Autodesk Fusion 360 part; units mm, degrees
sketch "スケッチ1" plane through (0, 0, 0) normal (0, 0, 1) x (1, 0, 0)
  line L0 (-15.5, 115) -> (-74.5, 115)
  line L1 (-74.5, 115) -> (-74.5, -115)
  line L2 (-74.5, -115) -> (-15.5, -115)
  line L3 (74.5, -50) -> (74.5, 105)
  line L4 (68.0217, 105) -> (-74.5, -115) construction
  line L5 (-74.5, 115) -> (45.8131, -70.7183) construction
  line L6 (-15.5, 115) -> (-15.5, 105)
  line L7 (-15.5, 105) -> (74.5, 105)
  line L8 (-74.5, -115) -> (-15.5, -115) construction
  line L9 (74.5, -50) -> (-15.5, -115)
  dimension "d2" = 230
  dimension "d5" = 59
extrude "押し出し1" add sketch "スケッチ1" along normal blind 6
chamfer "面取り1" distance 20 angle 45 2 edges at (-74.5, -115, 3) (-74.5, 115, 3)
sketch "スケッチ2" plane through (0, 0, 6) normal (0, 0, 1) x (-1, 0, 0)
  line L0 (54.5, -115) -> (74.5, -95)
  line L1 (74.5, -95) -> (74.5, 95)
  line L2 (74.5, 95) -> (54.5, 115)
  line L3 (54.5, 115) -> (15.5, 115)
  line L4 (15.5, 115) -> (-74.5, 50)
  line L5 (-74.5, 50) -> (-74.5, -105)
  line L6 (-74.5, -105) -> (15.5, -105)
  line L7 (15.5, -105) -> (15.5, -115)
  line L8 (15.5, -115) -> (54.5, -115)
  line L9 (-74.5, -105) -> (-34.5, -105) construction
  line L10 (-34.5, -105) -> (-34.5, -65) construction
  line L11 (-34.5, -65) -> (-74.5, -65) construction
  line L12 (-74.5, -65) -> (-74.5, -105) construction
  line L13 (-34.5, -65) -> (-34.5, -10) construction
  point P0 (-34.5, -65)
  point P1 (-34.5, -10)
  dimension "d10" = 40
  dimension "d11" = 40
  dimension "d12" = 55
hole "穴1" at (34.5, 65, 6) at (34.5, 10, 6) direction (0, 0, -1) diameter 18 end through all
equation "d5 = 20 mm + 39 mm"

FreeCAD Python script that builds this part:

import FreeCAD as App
import Part
import Sketcher
from FreeCAD import Vector


def edges_at(feature, points):
    """Names of the edges that pass closest to the given points."""
    edges = feature.Shape.Edges
    near = lambda p: min(range(len(edges)), key=lambda i: edges[i].distToShape(Part.Vertex(*p))[0])
    return sorted({f"Edge{near(p) + 1}" for p in points})

doc = App.newDocument("Part")
body = doc.addObject("PartDesign::Body", "Body")

# Sketch on XY plane
sketch1 = body.newObject("Sketcher::SketchObject", "Sketch")
sketch1.AttachmentSupport = (doc.getObject("XY_Plane"), [""])
sketch1.MapMode = "FlatFace"
sketch1.addGeometry(Part.LineSegment(Vector(-16, 105, 0), Vector(-16, 115, 0)), False)
sketch1.addGeometry(Part.LineSegment(Vector(-16, 115, 0), Vector(-74, 115, 0)), False)
sketch1.addGeometry(Part.LineSegment(Vector(-74, 115, 0), Vector(-74, -115, 0)), False)
sketch1.addGeometry(Part.LineSegment(Vector(-74, -115, 0), Vector(-16, -115, 0)), False)
sketch1.addGeometry(Part.LineSegment(Vector(-16, -115, 0), Vector(74, -50, 0)), False)
sketch1.addGeometry(Part.LineSegment(Vector(74, -50, 0), Vector(74, 105, 0)), False)
sketch1.addGeometry(Part.LineSegment(Vector(74, 105, 0), Vector(-16, 105, 0)), False)
sketch1.addConstraint(Sketcher.Constraint("Coincident", 0, 2, 1, 1))
sketch1.addConstraint(Sketcher.Constraint("Coincident", 1, 2, 2, 1))
sketch1.addConstraint(Sketcher.Constraint("Coincident", 2, 2, 3, 1))
sketch1.addConstraint(Sketcher.Constraint("Coincident", 3, 2, 4, 1))
sketch1.addConstraint(Sketcher.Constraint("Coincident", 4, 2, 5, 1))
sketch1.addConstraint(Sketcher.Constraint("Coincident", 5, 2, 6, 1))
sketch1.addConstraint(Sketcher.Constraint("Coincident", 6, 2, 0, 1))
sketch1.addConstraint(Sketcher.Constraint("Vertical", 0))
sketch1.addConstraint(Sketcher.Constraint("Horizontal", 1))
sketch1.addConstraint(Sketcher.Constraint("Vertical", 2))
sketch1.addConstraint(Sketcher.Constraint("Horizontal", 3))
sketch1.addConstraint(Sketcher.Constraint("Vertical", 5))
sketch1.addConstraint(Sketcher.Constraint("Horizontal", 6))
sketch1.addConstraint(Sketcher.Constraint("Symmetric", 0, 2, 3, 2, -1))
sketch1.addConstraint(Sketcher.Constraint("DistanceX", 1, 2, 1, 1, 59.0))
sketch1.addConstraint(Sketcher.Constraint("DistanceY", 2, 2, 2, 1, 230.0))
sketch1.addConstraint(Sketcher.Constraint("DistanceX", 6, 2, 6, 1, 90.0))
sketch1.addConstraint(Sketcher.Constraint("DistanceY", 0, 1, 0, 2, 10.0))
sketch1.addConstraint(Sketcher.Constraint("DistanceY", 5, 1, 5, 2, 155.0))
sketch1.addConstraint(Sketcher.Constraint("DistanceX", 0, 2, -1, 1, 15.5))
pad1 = body.newObject("PartDesign::Pad", "Pad")
pad1.Profile = sketch1
pad1.Length = 6
doc.recompute()

chamfer = body.newObject("PartDesign::Chamfer", "Chamfer")
chamfer.Base = (pad1, edges_at(pad1, [(-74.5, -115, 3), (-74.5, 115, 3)]))
chamfer.Size = 20

# Sketch on XY plane
sketch2 = body.newObject("Sketcher::SketchObject", "Sketch001")
sketch2.AttachmentSupport = (doc.getObject("XY_Plane"), [""])
sketch2.MapMode = "FlatFace"
sketch2.AttachmentOffset = App.Placement(Vector(0, 0, 6), App.Rotation())
sketch2.addGeometry(Part.Circle(Vector(34, 65, 0), Vector(0, 0, 1), 9), False)
sketch2.addGeometry(Part.Circle(Vector(34, 10, 0), Vector(0, 0, 1), 9), False)
sketch2.addConstraint(Sketcher.Constraint("Equal", 0, 1))
sketch2.addConstraint(Sketcher.Constraint("Vertical", 0, 3, 1, 3))
sketch2.addConstraint(Sketcher.Constraint("Diameter", 0, 18.0))
sketch2.addConstraint(Sketcher.Constraint("DistanceY", -1, 1, 0, 3, 65.0))
sketch2.addConstraint(Sketcher.Constraint("DistanceY", -1, 1, 1, 3, 10.0))
sketch2.addConstraint(Sketcher.Constraint("DistanceX", -1, 1, 0, 3, 34.5))
doc.recompute()
hole = body.newObject("PartDesign::Hole", "Hole")
hole.Profile = sketch2
hole.ThreadType = "None"
hole.Diameter = 18
hole.DepthType = "ThroughAll"

doc.recompute()
